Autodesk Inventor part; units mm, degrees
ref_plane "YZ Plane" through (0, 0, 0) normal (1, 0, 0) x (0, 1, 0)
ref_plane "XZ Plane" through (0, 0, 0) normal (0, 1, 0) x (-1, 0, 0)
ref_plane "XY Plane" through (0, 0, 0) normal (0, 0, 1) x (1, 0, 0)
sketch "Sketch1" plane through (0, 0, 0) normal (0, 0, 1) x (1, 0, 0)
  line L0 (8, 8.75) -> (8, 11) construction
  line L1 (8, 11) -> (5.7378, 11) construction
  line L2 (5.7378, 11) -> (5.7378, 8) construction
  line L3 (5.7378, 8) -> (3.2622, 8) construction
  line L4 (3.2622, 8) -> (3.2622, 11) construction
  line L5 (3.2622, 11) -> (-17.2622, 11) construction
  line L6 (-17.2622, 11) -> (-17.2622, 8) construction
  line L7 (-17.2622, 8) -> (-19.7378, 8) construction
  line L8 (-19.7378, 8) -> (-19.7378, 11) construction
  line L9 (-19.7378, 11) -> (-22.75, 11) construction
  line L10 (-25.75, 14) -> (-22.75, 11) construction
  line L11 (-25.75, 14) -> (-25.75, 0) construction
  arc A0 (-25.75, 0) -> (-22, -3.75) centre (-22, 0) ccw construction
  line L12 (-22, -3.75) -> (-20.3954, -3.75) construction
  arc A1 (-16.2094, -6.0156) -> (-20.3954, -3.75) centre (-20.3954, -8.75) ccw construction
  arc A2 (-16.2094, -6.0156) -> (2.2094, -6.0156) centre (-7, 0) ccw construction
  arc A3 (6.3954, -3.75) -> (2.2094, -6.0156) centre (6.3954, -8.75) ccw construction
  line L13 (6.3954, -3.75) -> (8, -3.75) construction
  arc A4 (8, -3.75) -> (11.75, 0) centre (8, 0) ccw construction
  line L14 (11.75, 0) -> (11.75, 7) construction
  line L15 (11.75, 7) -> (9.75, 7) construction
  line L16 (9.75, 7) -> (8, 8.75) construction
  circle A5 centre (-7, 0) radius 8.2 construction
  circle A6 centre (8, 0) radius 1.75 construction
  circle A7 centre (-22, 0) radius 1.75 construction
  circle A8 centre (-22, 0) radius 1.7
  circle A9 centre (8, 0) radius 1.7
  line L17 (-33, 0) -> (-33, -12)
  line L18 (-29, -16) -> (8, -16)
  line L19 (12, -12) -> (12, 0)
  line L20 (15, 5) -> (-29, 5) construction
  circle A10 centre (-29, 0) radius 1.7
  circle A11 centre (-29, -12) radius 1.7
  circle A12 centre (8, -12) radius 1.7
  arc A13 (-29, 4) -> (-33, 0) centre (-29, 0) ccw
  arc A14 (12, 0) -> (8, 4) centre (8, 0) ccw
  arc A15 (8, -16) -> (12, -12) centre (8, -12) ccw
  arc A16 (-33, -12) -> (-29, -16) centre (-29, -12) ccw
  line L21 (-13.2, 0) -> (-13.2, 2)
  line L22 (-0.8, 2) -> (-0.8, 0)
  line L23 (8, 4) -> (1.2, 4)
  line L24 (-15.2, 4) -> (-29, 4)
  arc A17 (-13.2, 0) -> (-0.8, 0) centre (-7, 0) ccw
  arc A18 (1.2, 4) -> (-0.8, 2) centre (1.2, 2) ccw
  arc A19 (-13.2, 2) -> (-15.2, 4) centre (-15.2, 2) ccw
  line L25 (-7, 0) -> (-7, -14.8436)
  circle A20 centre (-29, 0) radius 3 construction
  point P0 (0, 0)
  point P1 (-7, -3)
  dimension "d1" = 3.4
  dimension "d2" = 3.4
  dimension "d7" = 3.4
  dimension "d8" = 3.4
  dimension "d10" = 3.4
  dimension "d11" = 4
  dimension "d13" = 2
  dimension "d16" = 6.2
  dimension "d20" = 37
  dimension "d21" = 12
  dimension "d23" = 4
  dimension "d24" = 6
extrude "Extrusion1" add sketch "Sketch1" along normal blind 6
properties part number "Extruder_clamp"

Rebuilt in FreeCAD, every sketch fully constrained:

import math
import FreeCAD as App
import Part
import Sketcher
Q = App.Units.Quantity

doc = App.newDocument("Part")
body = doc.addObject("PartDesign::Body", "Body")

# Sketch on XY plane
sketch1 = body.newObject("Sketcher::SketchObject", "Sketch")
sketch1.AttachmentSupport = (doc.getObject("XY_Plane"), [""])
sketch1.MapMode = "FlatFace"
sketch1.addGeometry(Part.ArcOfCircle(Part.Circle(App.Vector(-29, 0, 0), App.Vector(0, 0, 1), 4), math.radians(90), math.radians(180)), False)
sketch1.addGeometry(Part.LineSegment(App.Vector(-33, 0, 0), App.Vector(-33, -12, 0)), False)
sketch1.addGeometry(Part.ArcOfCircle(Part.Circle(App.Vector(-29, -12, 0), App.Vector(0, 0, 1), 4), math.radians(180), math.radians(270)), False)
sketch1.addGeometry(Part.LineSegment(App.Vector(-29, -16, 0), App.Vector(8, -16, 0)), False)
sketch1.addGeometry(Part.ArcOfCircle(Part.Circle(App.Vector(8, -12, 0), App.Vector(0, 0, 1), 4), math.radians(-90), math.radians(0)), False)
sketch1.addGeometry(Part.LineSegment(App.Vector(12, -12, 0), App.Vector(12, 0, 0)), False)
sketch1.addGeometry(Part.ArcOfCircle(Part.Circle(App.Vector(8, 0, 0), App.Vector(0, 0, 1), 4), math.radians(0), math.radians(90)), False)
sketch1.addGeometry(Part.LineSegment(App.Vector(8, 4, 0), App.Vector(1.2, 4, 0)), False)
sketch1.addGeometry(Part.ArcOfCircle(Part.Circle(App.Vector(1.2, 2, 0), App.Vector(0, 0, 1), 2), math.radians(90), math.radians(180)), False)
sketch1.addGeometry(Part.LineSegment(App.Vector(-0.8, 2, 0), App.Vector(-0.8, 0, 0)), False)
sketch1.addGeometry(Part.ArcOfCircle(Part.Circle(App.Vector(-7, 0, 0), App.Vector(0, 0, 1), 6.2), math.radians(180), math.radians(360)), False)
sketch1.addGeometry(Part.LineSegment(App.Vector(-13.2, 0, 0), App.Vector(-13.2, 2, 0)), False)
sketch1.addGeometry(Part.ArcOfCircle(Part.Circle(App.Vector(-15.2, 2, 0), App.Vector(0, 0, 1), 2), math.radians(0), math.radians(90)), False)
sketch1.addGeometry(Part.LineSegment(App.Vector(-15.2, 4, 0), App.Vector(-29, 4, 0)), False)
sketch1.addGeometry(Part.Circle(App.Vector(-29, -12, 0), App.Vector(0, 0, 1), 1.7), False)
sketch1.addGeometry(Part.Circle(App.Vector(8, -12, 0), App.Vector(0, 0, 1), 1.7), False)
sketch1.addGeometry(Part.Circle(App.Vector(-29, 0, 0), App.Vector(0, 0, 1), 1.7), False)
sketch1.addGeometry(Part.Circle(App.Vector(-22, 0, 0), App.Vector(0, 0, 1), 1.7), False)
sketch1.addGeometry(Part.Circle(App.Vector(8, 0, 0), App.Vector(0, 0, 1), 1.7), False)
sketch1.addConstraint(Sketcher.Constraint("Tangent", 0, 2, 1, 1))
sketch1.addConstraint(Sketcher.Constraint("Tangent", 1, 2, 2, 1))
sketch1.addConstraint(Sketcher.Constraint("Tangent", 2, 2, 3, 1))
sketch1.addConstraint(Sketcher.Constraint("Tangent", 3, 2, 4, 1))
sketch1.addConstraint(Sketcher.Constraint("Tangent", 4, 2, 5, 1))
sketch1.addConstraint(Sketcher.Constraint("Tangent", 5, 2, 6, 1))
sketch1.addConstraint(Sketcher.Constraint("Tangent", 6, 2, 7, 1))
sketch1.addConstraint(Sketcher.Constraint("Tangent", 7, 2, 8, 1))
sketch1.addConstraint(Sketcher.Constraint("Tangent", 8, 2, 9, 1))
sketch1.addConstraint(Sketcher.Constraint("Tangent", 9, 2, 10, 2))
sketch1.addConstraint(Sketcher.Constraint("Tangent", 10, 1, 11, 1))
sketch1.addConstraint(Sketcher.Constraint("Tangent", 11, 2, 12, 1))
sketch1.addConstraint(Sketcher.Constraint("Tangent", 12, 2, 13, 1))
sketch1.addConstraint(Sketcher.Constraint("Tangent", 13, 2, 0, 1))
sketch1.addConstraint(Sketcher.Constraint("Vertical", 1))
sketch1.addConstraint(Sketcher.Constraint("Horizontal", 3))
sketch1.addConstraint(Sketcher.Constraint("Vertical", 5))
sketch1.addConstraint(Sketcher.Constraint("Horizontal", 7))
sketch1.addConstraint(Sketcher.Constraint("Vertical", 9))
sketch1.addConstraint(Sketcher.Constraint("Vertical", 11))
sketch1.addConstraint(Sketcher.Constraint("Horizontal", 13))
sketch1.addConstraint(Sketcher.Constraint("Coincident", 14, 3, 2, 3))
sketch1.addConstraint(Sketcher.Constraint("Coincident", 15, 3, 4, 3))
sketch1.addConstraint(Sketcher.Constraint("Coincident", 16, 3, 0, 3))
sketch1.addConstraint(Sketcher.Constraint("Coincident", 18, 3, 6, 3))
sketch1.addConstraint(Sketcher.Constraint("Equal", 0, 2))
sketch1.addConstraint(Sketcher.Constraint("Equal", 2, 4))
sketch1.addConstraint(Sketcher.Constraint("Equal", 4, 6))
sketch1.addConstraint(Sketcher.Constraint("Equal", 8, 12))
sketch1.addConstraint(Sketcher.Constraint("Equal", 14, 15))
sketch1.addConstraint(Sketcher.Constraint("Equal", 15, 16))
sketch1.addConstraint(Sketcher.Constraint("Equal", 16, 17))
sketch1.addConstraint(Sketcher.Constraint("Equal", 17, 18))
sketch1.addConstraint(Sketcher.Constraint("PointOnObject", 0, 3, -1))
sketch1.addConstraint(Sketcher.Constraint("PointOnObject", 6, 3, -1))
sketch1.addConstraint(Sketcher.Constraint("PointOnObject", 10, 3, -1))
sketch1.addConstraint(Sketcher.Constraint("PointOnObject", 17, 3, -1))
sketch1.addConstraint(Sketcher.Constraint("Radius", 0, Q("4 mm")))
sketch1.addConstraint(Sketcher.Constraint("Radius", 8, Q("2 mm")))
sketch1.addConstraint(Sketcher.Constraint("Diameter", 14, Q("3.4 mm")))
sketch1.addConstraint(Sketcher.Constraint("Radius", 10, Q("6.2 mm")))
sketch1.addConstraint(Sketcher.Constraint("DistanceX", 3, 1, 3, 2, Q("37 mm")))
sketch1.addConstraint(Sketcher.Constraint("DistanceY", 1, 2, 1, 1, Q("12 mm")))
sketch1.addConstraint(Sketcher.Constraint("DistanceX", -1, 1, 4, 2, Q("12 mm")))
sketch1.addConstraint(Sketcher.Constraint("DistanceX", 7, 2, 7, 1, Q("6.8 mm")))
sketch1.addConstraint(Sketcher.Constraint("DistanceX", 17, 3, -1, 1, Q("22 mm")))
pad1 = body.newObject("PartDesign::Pad", "Pad")
pad1.Profile = sketch1
pad1.Length = 6

doc.recompute()
